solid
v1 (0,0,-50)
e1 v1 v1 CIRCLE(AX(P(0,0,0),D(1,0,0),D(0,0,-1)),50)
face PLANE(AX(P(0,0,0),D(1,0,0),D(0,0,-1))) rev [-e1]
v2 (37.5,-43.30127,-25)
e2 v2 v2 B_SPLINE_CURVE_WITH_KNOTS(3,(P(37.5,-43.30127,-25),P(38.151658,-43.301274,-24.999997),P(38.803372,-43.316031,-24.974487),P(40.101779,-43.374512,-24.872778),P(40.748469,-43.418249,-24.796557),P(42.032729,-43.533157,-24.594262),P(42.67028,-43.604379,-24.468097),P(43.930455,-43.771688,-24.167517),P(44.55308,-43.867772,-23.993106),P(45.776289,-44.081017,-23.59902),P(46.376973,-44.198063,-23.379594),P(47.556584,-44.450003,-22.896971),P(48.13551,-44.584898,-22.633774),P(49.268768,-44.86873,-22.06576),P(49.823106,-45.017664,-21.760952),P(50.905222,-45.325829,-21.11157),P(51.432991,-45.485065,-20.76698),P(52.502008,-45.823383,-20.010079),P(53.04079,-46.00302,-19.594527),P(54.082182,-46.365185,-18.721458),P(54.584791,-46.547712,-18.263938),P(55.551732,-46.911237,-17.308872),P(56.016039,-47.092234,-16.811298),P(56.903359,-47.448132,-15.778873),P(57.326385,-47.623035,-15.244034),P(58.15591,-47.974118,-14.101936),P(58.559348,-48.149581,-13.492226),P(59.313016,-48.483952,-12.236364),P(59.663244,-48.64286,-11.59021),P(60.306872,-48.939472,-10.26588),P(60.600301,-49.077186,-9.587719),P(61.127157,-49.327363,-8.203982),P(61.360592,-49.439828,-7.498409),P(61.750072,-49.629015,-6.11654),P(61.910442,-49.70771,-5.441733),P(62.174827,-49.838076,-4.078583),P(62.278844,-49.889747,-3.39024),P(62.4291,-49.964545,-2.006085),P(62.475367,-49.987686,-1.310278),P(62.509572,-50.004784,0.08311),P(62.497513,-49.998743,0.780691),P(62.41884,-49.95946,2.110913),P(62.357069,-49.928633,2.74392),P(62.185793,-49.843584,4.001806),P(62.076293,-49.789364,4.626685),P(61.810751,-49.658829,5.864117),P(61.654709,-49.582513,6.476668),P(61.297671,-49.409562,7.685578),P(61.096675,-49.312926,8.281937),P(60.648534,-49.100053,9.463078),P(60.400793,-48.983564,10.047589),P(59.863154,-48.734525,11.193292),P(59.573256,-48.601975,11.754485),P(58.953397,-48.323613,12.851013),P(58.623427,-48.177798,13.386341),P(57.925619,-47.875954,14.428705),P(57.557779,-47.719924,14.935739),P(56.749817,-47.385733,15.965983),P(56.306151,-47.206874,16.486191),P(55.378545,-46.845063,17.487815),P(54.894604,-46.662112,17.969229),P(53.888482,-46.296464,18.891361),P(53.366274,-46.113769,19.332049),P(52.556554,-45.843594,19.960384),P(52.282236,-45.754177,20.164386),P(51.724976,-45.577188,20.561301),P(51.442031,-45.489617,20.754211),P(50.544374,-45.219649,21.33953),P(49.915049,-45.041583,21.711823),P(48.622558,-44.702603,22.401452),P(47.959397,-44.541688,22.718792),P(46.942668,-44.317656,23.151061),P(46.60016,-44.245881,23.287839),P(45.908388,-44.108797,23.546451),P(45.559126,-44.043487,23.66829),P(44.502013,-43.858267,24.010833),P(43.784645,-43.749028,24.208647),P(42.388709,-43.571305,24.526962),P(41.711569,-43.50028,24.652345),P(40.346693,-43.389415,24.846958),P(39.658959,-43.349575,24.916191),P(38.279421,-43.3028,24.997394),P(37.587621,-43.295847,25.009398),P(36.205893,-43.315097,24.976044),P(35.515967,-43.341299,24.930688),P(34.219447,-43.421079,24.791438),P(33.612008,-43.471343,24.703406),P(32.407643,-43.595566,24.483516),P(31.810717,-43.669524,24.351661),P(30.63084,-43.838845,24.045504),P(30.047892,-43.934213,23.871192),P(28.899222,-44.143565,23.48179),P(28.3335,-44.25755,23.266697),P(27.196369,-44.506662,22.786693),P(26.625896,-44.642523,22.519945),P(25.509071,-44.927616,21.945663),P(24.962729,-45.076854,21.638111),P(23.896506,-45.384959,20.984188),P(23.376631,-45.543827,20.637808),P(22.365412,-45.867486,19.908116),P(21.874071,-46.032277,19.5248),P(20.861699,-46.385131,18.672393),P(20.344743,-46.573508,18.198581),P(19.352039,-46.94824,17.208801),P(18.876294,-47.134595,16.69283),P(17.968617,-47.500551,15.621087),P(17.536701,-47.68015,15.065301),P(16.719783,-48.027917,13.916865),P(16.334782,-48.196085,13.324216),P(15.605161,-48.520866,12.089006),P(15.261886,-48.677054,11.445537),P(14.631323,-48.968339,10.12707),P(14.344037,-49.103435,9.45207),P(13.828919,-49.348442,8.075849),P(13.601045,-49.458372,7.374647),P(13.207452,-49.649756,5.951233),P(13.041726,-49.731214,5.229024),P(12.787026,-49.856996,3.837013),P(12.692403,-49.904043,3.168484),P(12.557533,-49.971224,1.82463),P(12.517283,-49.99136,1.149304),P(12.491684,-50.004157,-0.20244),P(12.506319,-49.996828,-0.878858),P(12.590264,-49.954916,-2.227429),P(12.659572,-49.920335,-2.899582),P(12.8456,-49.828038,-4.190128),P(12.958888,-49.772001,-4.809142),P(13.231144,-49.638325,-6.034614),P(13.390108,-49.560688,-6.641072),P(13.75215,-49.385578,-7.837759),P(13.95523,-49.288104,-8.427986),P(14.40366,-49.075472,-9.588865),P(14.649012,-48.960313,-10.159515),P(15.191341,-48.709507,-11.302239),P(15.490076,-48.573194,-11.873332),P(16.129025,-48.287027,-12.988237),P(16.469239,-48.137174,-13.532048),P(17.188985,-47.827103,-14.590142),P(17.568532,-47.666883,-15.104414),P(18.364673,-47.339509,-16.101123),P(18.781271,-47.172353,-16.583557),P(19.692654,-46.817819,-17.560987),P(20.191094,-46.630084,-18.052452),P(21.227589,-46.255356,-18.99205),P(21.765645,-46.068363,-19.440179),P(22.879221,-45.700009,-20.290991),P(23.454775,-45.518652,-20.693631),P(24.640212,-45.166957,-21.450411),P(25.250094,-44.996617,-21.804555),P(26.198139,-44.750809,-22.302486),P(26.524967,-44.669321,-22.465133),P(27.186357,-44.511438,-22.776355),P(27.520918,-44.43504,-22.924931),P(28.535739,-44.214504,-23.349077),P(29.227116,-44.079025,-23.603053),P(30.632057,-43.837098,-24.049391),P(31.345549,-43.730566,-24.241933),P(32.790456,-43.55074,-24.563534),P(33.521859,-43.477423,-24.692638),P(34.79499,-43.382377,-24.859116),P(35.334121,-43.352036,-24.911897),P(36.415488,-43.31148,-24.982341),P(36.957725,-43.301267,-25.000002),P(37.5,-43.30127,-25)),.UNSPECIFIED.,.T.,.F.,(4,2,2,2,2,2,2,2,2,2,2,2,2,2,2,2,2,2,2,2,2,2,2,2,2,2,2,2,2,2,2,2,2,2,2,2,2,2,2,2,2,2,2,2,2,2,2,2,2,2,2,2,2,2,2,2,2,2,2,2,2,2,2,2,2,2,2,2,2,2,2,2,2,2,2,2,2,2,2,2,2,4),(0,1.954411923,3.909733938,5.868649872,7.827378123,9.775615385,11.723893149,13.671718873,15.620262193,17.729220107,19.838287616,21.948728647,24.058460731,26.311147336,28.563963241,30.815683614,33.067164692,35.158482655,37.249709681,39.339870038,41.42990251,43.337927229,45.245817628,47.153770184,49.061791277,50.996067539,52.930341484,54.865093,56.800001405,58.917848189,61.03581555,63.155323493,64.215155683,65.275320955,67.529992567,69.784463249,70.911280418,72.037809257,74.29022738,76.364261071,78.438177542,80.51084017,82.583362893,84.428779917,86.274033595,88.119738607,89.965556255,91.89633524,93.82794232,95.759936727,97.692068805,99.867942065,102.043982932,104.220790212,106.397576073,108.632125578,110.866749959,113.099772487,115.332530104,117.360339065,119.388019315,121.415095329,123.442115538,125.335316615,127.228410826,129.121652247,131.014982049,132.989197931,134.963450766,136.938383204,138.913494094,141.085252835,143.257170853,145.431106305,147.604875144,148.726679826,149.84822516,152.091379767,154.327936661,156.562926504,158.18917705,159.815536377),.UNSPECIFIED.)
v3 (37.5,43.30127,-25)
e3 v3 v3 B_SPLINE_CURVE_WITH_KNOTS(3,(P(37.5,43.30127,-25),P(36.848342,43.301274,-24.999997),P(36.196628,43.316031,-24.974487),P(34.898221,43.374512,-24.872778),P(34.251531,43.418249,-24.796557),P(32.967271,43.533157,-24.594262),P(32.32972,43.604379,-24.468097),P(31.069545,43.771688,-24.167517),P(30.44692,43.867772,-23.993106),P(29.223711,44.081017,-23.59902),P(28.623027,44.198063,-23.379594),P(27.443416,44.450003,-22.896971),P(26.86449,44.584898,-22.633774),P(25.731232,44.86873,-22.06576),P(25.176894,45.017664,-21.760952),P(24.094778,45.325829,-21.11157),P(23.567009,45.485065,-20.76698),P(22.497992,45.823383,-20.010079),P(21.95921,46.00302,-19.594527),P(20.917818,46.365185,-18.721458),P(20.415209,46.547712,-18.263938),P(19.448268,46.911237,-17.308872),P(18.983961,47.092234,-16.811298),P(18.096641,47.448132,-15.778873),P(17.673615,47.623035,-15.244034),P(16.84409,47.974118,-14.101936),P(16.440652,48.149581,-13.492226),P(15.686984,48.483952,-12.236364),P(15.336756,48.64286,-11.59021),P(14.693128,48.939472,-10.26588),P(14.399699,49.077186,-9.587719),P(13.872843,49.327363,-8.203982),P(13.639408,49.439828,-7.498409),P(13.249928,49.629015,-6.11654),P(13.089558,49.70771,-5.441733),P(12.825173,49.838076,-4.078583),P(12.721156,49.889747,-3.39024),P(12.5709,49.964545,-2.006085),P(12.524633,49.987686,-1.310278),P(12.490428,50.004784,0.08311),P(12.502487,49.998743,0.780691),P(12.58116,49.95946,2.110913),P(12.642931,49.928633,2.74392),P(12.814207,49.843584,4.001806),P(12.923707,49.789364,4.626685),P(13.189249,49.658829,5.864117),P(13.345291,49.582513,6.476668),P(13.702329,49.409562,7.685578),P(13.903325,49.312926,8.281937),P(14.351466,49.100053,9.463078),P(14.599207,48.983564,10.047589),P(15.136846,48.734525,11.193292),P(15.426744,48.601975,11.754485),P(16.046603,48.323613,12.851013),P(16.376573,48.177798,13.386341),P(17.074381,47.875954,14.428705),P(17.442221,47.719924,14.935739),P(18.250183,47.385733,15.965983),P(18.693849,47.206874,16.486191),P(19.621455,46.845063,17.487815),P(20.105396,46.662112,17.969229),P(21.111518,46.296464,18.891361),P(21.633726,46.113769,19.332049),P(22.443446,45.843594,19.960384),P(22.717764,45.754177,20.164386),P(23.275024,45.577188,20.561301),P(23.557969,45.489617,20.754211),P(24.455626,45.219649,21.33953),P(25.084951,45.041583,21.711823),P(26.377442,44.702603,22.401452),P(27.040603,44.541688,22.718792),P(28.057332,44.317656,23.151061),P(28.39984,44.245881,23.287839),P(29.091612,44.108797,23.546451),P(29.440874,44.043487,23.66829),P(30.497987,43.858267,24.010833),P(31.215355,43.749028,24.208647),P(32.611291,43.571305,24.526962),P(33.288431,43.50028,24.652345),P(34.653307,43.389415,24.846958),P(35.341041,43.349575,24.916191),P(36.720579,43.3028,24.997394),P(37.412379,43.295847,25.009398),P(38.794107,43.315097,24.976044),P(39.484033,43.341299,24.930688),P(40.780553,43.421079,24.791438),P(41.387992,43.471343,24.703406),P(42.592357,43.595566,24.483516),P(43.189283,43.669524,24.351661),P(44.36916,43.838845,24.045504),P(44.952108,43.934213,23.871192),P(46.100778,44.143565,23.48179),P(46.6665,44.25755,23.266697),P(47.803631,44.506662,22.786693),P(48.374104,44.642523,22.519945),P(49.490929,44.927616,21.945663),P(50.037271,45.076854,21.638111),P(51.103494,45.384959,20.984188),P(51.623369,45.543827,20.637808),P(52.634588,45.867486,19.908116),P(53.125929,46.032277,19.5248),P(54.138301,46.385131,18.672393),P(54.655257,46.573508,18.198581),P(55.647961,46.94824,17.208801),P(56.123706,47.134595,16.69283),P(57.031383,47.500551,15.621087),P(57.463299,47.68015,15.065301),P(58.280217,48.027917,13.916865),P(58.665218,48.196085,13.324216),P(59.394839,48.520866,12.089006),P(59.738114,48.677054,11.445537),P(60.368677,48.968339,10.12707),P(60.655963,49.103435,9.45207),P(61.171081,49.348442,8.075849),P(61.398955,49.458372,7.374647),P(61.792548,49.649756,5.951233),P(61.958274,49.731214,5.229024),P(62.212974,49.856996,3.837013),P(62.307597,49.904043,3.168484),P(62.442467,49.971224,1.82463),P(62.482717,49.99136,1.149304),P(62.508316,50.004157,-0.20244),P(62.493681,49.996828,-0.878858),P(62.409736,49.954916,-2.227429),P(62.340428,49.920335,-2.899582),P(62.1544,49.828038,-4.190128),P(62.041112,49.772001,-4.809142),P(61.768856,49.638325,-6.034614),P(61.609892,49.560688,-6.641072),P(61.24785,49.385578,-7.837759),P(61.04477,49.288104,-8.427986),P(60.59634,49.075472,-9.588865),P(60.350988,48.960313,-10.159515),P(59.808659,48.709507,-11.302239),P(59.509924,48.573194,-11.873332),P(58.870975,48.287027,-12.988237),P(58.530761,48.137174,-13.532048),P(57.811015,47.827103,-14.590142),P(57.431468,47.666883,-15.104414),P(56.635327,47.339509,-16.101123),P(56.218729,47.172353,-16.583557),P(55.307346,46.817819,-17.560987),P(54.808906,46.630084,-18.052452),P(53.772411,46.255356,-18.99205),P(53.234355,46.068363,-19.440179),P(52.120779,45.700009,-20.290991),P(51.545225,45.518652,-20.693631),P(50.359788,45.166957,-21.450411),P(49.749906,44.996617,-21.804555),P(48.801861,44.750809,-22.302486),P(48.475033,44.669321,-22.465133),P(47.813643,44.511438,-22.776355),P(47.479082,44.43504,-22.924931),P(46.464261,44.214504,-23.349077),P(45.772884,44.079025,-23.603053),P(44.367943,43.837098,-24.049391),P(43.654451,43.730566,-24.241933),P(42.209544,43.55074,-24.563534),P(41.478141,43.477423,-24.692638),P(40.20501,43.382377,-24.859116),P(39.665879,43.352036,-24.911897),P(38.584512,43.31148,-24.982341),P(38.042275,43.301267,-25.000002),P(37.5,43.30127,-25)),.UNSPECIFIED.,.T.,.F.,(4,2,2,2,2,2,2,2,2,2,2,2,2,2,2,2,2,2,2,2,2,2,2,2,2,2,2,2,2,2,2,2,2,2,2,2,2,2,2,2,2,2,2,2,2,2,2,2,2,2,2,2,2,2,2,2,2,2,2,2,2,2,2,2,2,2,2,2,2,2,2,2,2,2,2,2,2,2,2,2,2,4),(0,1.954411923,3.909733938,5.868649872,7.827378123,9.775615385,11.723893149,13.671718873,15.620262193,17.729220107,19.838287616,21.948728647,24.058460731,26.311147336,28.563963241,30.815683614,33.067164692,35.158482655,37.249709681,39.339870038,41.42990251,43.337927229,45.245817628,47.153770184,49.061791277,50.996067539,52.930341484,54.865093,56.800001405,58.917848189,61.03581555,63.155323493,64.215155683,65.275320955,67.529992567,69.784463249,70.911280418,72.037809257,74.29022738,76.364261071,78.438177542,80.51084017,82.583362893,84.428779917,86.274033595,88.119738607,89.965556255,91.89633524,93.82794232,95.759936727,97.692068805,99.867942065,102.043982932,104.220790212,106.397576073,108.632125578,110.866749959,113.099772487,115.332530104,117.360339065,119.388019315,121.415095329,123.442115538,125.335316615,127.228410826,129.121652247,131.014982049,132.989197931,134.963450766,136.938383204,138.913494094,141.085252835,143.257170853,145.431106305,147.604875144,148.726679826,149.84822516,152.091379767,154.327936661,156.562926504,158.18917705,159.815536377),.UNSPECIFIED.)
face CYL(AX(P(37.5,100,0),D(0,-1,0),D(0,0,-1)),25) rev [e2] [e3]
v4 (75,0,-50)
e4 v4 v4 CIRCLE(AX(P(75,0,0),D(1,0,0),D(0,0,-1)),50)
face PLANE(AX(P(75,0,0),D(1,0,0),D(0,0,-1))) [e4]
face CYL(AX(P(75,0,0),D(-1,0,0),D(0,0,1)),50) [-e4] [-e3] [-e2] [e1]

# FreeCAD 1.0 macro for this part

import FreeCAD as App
import Part
import Sketcher

V = App.Vector

doc = App.newDocument("Part")
body = doc.addObject("PartDesign::Body", "Body")

sketch1 = doc.addObject("Sketcher::SketchObject", "Sketch")
body.addObject(sketch1)
sketch1.AttachmentSupport = (doc.YZ_Plane, [""])
sketch1.MapMode = "FlatFace"
sketch1.addGeometry(Part.Circle(V(0, 0, 0), V(0, 0, 1), 50), False)
sketch1.addConstraint([
    Sketcher.Constraint("Coincident", 0, 3, -1, 1),
    Sketcher.Constraint("Diameter", 0, 100.0),
])
pad1 = doc.addObject("PartDesign::Pad", "Pad")
body.addObject(pad1)
pad1.Profile = sketch1
pad1.Length = 75

sketch2 = doc.addObject("Sketcher::SketchObject", "Sketch001")
body.addObject(sketch2)
sketch2.AttachmentSupport = (doc.XZ_Plane, [""])
sketch2.MapMode = "FlatFace"
sketch2.addGeometry(Part.Circle(V(38, 0, 0), V(0, 0, 1), 25), False)
sketch2.addConstraint([
    Sketcher.Constraint("PointOnObject", 0, 3, -1),
    Sketcher.Constraint("Diameter", 0, 50.0),
    Sketcher.Constraint("DistanceX", -1, 1, 0, 3, 37.5),
])
pocket1 = doc.addObject("PartDesign::Pocket", "Pocket")
body.addObject(pocket1)
pocket1.Profile = sketch2
pocket1.Type = "ThroughAll"
pocket1.Midplane = True

doc.recompute()
